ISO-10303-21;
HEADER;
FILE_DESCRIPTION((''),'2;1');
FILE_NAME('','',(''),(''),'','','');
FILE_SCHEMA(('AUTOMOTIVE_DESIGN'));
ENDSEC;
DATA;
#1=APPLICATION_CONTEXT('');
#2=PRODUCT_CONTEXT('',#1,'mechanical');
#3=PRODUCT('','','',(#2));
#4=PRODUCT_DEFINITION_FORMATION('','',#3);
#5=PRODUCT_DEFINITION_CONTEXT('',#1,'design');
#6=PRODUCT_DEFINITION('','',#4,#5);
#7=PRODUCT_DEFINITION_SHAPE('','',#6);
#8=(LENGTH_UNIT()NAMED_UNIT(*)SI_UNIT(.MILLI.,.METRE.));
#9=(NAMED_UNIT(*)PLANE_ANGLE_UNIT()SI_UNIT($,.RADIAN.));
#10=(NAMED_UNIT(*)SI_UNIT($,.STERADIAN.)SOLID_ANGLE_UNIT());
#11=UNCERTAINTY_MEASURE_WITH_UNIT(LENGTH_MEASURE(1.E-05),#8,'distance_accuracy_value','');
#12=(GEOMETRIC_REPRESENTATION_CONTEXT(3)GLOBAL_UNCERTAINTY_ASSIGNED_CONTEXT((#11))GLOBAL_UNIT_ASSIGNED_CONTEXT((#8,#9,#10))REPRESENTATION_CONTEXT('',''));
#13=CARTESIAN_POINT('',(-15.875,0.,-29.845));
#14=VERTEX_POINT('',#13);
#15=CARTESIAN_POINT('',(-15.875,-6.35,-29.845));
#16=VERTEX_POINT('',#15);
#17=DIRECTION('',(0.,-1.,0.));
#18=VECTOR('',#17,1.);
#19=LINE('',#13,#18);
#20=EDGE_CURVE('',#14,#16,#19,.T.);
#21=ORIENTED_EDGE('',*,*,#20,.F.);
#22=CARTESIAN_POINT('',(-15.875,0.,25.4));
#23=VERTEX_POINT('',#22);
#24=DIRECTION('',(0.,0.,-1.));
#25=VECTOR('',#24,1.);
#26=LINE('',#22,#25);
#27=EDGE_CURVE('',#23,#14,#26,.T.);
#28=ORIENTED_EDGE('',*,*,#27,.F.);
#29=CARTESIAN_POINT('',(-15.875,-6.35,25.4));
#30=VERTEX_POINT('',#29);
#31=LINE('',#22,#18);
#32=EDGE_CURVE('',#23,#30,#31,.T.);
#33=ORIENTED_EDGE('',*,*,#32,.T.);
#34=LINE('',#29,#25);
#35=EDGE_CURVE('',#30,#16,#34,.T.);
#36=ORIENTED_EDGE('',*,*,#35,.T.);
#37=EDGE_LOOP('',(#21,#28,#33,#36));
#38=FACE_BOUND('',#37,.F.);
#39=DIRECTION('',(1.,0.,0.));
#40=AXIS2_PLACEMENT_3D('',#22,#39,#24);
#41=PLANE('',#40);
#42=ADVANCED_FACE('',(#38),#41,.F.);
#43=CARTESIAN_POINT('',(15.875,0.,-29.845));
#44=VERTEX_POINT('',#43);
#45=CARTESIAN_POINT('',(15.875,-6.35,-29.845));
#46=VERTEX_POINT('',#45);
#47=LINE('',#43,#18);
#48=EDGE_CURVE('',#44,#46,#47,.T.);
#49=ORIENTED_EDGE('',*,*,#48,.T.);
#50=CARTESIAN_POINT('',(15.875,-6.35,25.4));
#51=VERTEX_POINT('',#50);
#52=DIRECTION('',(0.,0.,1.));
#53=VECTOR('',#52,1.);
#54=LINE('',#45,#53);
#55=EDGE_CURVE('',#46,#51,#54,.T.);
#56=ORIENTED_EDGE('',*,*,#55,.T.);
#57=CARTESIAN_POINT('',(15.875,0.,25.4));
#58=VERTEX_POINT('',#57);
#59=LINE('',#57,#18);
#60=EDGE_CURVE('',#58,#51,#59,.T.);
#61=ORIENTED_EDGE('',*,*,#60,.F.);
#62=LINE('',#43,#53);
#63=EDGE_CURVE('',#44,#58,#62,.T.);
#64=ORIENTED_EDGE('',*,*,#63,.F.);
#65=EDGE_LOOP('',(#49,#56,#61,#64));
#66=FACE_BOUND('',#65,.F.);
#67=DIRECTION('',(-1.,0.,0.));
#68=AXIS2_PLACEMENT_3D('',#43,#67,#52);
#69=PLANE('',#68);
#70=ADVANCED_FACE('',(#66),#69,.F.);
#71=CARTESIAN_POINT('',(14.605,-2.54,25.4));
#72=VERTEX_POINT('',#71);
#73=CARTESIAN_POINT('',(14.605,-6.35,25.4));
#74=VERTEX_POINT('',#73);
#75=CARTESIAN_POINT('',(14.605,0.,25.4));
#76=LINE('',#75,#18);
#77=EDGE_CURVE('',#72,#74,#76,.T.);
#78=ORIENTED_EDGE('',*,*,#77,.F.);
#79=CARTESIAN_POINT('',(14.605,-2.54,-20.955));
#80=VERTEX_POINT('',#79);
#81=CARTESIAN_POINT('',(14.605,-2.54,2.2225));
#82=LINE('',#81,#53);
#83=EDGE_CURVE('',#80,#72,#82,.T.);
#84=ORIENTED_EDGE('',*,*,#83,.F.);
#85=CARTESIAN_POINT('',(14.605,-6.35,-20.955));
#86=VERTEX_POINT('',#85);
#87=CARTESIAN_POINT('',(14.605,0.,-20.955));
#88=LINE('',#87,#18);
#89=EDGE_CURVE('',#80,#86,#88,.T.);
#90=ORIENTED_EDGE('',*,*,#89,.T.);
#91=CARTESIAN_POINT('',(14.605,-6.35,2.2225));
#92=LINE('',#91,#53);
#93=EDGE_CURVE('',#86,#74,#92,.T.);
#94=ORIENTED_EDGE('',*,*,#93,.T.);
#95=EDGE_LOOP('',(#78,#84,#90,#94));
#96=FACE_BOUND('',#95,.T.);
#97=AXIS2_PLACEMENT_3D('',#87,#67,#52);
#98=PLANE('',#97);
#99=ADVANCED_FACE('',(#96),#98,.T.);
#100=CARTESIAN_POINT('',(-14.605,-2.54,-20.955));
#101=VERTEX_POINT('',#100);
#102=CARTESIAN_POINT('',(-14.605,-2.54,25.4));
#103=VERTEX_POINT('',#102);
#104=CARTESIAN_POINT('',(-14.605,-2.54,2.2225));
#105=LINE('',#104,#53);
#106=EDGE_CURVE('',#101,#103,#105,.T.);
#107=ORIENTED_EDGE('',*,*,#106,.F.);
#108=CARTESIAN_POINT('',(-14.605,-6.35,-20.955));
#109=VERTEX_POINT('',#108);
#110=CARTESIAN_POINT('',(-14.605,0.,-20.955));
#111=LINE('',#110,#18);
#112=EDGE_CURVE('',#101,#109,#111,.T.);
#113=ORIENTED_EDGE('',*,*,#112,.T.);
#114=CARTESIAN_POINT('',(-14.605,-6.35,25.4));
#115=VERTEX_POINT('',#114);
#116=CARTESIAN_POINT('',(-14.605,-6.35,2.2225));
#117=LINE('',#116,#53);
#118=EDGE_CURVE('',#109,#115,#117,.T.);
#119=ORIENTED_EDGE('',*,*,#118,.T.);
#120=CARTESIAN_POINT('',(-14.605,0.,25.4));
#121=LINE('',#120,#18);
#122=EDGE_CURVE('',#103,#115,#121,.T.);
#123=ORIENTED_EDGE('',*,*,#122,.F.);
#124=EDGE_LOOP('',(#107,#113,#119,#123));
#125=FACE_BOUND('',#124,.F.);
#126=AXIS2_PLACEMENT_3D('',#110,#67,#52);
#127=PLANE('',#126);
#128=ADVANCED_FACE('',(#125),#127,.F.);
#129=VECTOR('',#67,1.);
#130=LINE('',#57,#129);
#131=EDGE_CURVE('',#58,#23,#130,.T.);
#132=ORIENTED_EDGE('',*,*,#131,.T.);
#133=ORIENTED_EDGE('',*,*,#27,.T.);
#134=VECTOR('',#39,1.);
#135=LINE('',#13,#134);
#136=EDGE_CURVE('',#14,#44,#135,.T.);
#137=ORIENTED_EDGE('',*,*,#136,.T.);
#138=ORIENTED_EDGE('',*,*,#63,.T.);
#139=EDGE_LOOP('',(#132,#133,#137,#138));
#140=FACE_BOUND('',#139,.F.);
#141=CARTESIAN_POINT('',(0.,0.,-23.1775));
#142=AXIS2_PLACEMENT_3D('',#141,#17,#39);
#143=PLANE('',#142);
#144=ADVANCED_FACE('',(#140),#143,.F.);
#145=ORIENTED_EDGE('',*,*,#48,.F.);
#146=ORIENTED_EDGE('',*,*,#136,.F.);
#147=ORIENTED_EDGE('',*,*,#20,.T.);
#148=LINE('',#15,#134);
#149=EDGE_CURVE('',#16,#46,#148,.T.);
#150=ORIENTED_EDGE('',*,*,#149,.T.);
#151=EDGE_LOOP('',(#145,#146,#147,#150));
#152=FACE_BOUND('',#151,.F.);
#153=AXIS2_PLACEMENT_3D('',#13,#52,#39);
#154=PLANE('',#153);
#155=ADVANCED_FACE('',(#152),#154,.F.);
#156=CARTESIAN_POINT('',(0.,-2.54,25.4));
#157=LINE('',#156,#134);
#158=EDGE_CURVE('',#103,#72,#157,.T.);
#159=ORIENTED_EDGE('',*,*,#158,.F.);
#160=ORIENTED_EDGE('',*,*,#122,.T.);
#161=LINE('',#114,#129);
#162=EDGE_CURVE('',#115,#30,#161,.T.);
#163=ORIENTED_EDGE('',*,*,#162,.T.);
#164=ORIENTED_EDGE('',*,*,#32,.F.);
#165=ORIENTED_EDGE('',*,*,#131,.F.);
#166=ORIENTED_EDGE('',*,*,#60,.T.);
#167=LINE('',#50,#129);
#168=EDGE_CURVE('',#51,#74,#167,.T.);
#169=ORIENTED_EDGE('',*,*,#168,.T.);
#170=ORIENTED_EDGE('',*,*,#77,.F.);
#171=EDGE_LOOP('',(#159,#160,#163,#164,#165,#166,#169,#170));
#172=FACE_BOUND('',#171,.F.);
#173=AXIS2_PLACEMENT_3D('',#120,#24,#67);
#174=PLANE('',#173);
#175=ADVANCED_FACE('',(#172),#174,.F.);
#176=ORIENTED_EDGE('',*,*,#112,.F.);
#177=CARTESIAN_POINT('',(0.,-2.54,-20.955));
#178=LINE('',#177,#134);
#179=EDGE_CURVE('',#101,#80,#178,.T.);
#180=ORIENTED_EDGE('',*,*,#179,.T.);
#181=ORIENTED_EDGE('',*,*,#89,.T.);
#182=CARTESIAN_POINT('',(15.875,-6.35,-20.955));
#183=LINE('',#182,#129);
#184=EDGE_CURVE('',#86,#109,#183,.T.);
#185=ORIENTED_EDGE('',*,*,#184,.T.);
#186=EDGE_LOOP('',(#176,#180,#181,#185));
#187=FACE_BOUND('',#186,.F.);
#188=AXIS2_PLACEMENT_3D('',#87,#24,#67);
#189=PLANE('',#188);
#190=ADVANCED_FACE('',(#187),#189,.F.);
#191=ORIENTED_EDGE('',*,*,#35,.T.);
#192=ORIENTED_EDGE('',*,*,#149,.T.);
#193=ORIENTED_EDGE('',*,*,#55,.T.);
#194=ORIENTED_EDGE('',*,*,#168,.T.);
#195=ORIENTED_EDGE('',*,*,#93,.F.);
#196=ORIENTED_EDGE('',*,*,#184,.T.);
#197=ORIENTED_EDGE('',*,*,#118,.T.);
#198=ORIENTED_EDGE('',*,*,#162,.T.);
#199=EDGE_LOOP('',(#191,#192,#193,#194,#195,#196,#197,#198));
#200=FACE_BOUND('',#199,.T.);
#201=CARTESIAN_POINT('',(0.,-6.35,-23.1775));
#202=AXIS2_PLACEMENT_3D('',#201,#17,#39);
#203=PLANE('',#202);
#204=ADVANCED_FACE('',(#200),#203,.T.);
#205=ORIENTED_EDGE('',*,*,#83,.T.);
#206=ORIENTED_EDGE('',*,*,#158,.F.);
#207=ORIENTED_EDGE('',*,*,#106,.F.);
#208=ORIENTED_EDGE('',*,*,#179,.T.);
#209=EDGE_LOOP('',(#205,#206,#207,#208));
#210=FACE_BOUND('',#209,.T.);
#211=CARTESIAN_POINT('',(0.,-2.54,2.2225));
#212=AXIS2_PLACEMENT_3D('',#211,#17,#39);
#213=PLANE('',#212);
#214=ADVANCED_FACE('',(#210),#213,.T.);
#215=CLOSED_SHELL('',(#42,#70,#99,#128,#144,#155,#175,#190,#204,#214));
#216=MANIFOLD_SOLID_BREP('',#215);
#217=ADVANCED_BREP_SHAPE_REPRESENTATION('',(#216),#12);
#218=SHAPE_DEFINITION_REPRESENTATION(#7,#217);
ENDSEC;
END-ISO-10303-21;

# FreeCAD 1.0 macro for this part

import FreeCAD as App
import Part
import Sketcher
Q = App.Units.Quantity

doc = App.newDocument("Part")
body = doc.addObject("PartDesign::Body", "Body")

sketch1 = doc.addObject("Sketcher::SketchObject", "Sketch")
body.addObject(sketch1)
sketch1.AttachmentSupport = (doc.XZ_Plane, [""])
sketch1.MapMode = "FlatFace"
sketch1.addGeometry(Part.LineSegment(App.Vector(-15, 25, 0), App.Vector(-15, -21, 0)), False)
sketch1.addGeometry(Part.LineSegment(App.Vector(-15, -21, 0), App.Vector(15, -21, 0)), False)
sketch1.addGeometry(Part.LineSegment(App.Vector(15, -21, 0), App.Vector(15, 25, 0)), False)
sketch1.addGeometry(Part.LineSegment(App.Vector(15, 25, 0), App.Vector(-15, 25, 0)), False)
sketch1.addConstraint(Sketcher.Constraint("Coincident", 0, 2, 1, 1))
sketch1.addConstraint(Sketcher.Constraint("Coincident", 1, 2, 2, 1))
sketch1.addConstraint(Sketcher.Constraint("Coincident", 2, 2, 3, 1))
sketch1.addConstraint(Sketcher.Constraint("Coincident", 3, 2, 0, 1))
sketch1.addConstraint(Sketcher.Constraint("Vertical", 0))
sketch1.addConstraint(Sketcher.Constraint("Horizontal", 1))
sketch1.addConstraint(Sketcher.Constraint("Vertical", 2))
sketch1.addConstraint(Sketcher.Constraint("Horizontal", 3))
sketch1.addConstraint(Sketcher.Constraint("DistanceY", -1, 1, 2, 2, Q("1 in")))
sketch1.addConstraint(Sketcher.Constraint("DistanceX", 1, 1, 1, 2, Q("1.15 in")))
sketch1.addConstraint(Sketcher.Constraint("DistanceY", 0, 2, 0, 1, Q("1.825 in")))
sketch1.addConstraint(Sketcher.Constraint("DistanceX", 0, 2, -1, 1, Q("0.575 in")))
pad1 = doc.addObject("PartDesign::Pad", "Pad")
body.addObject(pad1)
pad1.Profile = sketch1
pad1.Length = Q("0.1 in")

sketch2 = doc.addObject("Sketcher::SketchObject", "Sketch001")
body.addObject(sketch2)
sketch2.AttachmentSupport = (doc.XZ_Plane, [""])
sketch2.MapMode = "FlatFace"
sketch2.addGeometry(Part.LineSegment(App.Vector(-14.6, -21, 0), App.Vector(-14.6, 25.4, 0)), False)
sketch2.addGeometry(Part.LineSegment(App.Vector(-14.6, 25.4, 0), App.Vector(-15.9, 25.4, 0)), False)
sketch2.addGeometry(Part.LineSegment(App.Vector(-15.9, 25.4, 0), App.Vector(-15.9, -29.8, 0)), False)
sketch2.addGeometry(Part.LineSegment(App.Vector(-15.9, -29.8, 0), App.Vector(15.9, -29.8, 0)), False)
sketch2.addGeometry(Part.LineSegment(App.Vector(15.9, -29.8, 0), App.Vector(15.9, 25.4, 0)), False)
sketch2.addGeometry(Part.LineSegment(App.Vector(15.9, 25.4, 0), App.Vector(14.6, 25.4, 0)), False)
sketch2.addGeometry(Part.LineSegment(App.Vector(14.6, 25.4, 0), App.Vector(14.6, -21, 0)), False)
sketch2.addGeometry(Part.LineSegment(App.Vector(14.6, -21, 0), App.Vector(-14.6, -21, 0)), False)
sketch2.addConstraint(Sketcher.Constraint("Coincident", 0, 2, 1, 1))
sketch2.addConstraint(Sketcher.Constraint("Coincident", 1, 2, 2, 1))
sketch2.addConstraint(Sketcher.Constraint("Coincident", 2, 2, 3, 1))
sketch2.addConstraint(Sketcher.Constraint("Coincident", 3, 2, 4, 1))
sketch2.addConstraint(Sketcher.Constraint("Coincident", 4, 2, 5, 1))
sketch2.addConstraint(Sketcher.Constraint("Coincident", 5, 2, 6, 1))
sketch2.addConstraint(Sketcher.Constraint("Coincident", 6, 2, 7, 1))
sketch2.addConstraint(Sketcher.Constraint("Coincident", 7, 2, 0, 1))
sketch2.addConstraint(Sketcher.Constraint("Vertical", 0))
sketch2.addConstraint(Sketcher.Constraint("Horizontal", 1))
sketch2.addConstraint(Sketcher.Constraint("Vertical", 2))
sketch2.addConstraint(Sketcher.Constraint("Horizontal", 3))
sketch2.addConstraint(Sketcher.Constraint("Vertical", 4))
sketch2.addConstraint(Sketcher.Constraint("Horizontal", 5))
sketch2.addConstraint(Sketcher.Constraint("Vertical", 6))
sketch2.addConstraint(Sketcher.Constraint("Horizontal", 7))
sketch2.addConstraint(Sketcher.Constraint("Symmetric", 1, 2, 4, 2, -2))
sketch2.addConstraint(Sketcher.Constraint("Equal", 1, 5))
sketch2.addConstraint(Sketcher.Constraint("DistanceY", -1, 1, 0, 2, Q("1 in")))
sketch2.addConstraint(Sketcher.Constraint("DistanceX", 1, 2, 1, 1, Q("0.05 in")))
sketch2.addConstraint(Sketcher.Constraint("DistanceX", 3, 1, 3, 2, Q("1.25 in")))
sketch2.addConstraint(Sketcher.Constraint("DistanceY", 0, 1, 0, 2, Q("1.825 in")))
sketch2.addConstraint(Sketcher.Constraint("DistanceY", 2, 2, 2, 1, Q("2.175 in")))
pad2 = doc.addObject("PartDesign::Pad", "Pad001")
body.addObject(pad2)
pad2.Profile = sketch2
pad2.Length = Q("0.25 in")

doc.recompute()
